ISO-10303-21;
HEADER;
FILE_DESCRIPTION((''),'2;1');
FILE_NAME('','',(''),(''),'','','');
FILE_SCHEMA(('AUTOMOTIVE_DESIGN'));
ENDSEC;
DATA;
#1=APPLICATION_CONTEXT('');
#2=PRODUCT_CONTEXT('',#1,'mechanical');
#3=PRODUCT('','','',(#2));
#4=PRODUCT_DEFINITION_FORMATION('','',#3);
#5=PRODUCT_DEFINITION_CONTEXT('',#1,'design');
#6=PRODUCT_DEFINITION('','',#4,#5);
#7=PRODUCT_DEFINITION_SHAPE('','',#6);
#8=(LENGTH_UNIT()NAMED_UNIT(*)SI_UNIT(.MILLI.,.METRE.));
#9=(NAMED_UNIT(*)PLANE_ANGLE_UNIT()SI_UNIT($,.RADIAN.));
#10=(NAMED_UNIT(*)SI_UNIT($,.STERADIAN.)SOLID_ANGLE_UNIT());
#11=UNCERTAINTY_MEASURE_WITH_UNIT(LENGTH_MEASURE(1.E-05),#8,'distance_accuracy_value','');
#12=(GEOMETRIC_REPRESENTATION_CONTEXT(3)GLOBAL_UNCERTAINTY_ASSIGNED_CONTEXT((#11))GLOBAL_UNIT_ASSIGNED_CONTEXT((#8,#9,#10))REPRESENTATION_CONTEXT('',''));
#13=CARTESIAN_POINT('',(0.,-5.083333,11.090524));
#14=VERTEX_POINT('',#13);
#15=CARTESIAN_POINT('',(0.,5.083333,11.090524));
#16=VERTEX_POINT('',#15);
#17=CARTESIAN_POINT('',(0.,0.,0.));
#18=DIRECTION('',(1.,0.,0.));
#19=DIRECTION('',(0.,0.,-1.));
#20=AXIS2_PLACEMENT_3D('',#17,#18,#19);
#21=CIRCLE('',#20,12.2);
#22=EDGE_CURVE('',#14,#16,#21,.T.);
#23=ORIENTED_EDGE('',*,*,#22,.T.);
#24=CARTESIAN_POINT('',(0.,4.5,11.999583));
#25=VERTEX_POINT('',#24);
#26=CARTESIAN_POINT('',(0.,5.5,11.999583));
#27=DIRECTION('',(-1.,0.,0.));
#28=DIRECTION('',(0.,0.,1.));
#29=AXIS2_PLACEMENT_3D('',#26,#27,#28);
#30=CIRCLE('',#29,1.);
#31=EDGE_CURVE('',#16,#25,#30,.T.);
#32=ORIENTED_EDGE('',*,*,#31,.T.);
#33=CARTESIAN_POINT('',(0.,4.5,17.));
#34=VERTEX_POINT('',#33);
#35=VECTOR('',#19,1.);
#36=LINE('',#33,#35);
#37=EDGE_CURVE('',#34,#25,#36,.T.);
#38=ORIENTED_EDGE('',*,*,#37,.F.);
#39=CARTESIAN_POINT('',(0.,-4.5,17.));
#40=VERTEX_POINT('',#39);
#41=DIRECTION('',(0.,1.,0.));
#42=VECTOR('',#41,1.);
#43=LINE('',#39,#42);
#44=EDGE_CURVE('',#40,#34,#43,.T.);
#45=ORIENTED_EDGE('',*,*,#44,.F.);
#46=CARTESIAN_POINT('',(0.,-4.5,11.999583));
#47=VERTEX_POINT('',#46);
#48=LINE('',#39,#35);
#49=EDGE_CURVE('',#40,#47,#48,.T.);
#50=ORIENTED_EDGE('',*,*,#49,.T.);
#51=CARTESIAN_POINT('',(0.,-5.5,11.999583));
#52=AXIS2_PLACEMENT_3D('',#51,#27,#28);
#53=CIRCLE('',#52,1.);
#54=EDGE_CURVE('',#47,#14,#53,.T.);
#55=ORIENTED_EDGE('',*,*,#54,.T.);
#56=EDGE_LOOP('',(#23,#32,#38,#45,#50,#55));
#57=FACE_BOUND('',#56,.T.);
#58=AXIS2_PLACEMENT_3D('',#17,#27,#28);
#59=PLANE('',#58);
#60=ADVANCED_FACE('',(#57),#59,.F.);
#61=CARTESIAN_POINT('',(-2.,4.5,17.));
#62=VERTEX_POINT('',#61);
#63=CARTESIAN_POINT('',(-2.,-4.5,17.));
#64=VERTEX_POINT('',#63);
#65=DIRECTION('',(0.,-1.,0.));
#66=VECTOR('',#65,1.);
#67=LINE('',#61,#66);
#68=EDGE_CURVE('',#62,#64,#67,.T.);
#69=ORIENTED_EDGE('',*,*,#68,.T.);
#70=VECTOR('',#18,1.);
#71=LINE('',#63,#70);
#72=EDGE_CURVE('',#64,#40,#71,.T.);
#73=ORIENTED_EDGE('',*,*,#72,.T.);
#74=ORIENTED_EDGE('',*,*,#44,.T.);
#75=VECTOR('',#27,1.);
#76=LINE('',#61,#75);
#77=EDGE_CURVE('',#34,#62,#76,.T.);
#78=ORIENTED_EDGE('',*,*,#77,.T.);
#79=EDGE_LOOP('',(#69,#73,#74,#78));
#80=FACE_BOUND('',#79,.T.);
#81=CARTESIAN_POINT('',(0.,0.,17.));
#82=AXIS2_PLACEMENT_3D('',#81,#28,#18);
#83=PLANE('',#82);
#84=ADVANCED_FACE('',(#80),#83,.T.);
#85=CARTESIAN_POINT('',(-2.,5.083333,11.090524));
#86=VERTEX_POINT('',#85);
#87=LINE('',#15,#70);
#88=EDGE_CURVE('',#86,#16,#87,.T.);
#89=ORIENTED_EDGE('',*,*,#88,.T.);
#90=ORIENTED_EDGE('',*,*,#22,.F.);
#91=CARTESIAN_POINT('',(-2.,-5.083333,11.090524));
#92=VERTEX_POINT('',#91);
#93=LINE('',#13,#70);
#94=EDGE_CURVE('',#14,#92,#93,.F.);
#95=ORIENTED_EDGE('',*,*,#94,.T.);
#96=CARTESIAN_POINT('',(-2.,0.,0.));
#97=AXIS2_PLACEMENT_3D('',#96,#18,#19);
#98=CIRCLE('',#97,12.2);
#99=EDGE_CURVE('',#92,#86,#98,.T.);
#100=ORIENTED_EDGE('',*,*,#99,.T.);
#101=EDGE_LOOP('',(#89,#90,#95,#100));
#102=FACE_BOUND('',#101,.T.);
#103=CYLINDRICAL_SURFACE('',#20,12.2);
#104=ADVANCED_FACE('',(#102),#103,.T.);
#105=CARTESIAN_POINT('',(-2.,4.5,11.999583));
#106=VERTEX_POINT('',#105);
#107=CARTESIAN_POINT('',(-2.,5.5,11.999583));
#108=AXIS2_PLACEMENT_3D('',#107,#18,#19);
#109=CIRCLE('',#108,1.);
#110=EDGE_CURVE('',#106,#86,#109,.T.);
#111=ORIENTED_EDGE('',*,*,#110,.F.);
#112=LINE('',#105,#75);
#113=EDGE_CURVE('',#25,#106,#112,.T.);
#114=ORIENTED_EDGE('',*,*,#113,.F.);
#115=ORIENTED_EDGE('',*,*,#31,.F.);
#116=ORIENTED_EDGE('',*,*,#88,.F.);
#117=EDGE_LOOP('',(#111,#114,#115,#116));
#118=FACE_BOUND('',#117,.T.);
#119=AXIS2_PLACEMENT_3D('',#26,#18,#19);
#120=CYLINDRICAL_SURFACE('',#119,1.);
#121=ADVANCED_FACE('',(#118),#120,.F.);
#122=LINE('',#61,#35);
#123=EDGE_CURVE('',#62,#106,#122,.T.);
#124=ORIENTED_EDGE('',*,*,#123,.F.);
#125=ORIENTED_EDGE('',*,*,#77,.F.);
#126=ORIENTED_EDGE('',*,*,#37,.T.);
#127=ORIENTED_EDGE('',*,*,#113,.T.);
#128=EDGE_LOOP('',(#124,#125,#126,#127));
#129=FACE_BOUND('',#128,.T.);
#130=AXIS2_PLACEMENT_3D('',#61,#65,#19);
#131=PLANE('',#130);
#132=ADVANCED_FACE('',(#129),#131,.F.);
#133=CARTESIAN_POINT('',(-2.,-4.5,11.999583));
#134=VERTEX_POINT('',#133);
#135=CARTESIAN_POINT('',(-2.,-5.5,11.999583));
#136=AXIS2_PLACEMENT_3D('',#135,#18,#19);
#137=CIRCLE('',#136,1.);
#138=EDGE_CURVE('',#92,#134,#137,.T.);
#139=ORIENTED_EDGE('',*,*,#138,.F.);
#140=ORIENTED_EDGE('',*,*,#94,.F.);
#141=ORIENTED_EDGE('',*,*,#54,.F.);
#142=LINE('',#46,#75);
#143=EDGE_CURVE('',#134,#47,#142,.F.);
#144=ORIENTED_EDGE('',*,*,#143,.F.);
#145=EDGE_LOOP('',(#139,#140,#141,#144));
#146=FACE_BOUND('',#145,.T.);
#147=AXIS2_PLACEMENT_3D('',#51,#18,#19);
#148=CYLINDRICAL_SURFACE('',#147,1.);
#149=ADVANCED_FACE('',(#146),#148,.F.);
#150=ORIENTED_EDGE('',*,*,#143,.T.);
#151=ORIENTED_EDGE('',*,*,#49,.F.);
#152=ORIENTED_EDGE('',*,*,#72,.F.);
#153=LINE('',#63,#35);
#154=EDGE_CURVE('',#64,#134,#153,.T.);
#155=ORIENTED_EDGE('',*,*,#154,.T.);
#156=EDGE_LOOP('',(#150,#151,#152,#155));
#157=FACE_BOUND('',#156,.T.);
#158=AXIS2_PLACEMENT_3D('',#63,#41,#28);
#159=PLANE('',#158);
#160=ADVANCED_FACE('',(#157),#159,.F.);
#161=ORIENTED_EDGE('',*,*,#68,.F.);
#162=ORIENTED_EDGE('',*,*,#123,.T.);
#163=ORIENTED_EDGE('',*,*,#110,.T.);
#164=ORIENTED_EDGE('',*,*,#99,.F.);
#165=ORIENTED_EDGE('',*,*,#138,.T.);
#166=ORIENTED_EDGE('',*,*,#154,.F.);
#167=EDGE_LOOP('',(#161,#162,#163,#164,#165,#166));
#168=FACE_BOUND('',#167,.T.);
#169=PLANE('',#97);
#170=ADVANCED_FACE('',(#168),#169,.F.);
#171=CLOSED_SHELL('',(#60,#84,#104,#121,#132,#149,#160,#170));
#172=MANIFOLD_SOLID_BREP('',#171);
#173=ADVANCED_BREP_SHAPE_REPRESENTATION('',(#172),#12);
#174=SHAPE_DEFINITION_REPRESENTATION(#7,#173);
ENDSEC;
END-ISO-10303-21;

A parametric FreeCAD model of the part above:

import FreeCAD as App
import Part
import Sketcher

V = App.Vector
Q = App.Units.Quantity


def edges_at(feature, points):
    """Names of the edges that pass closest to the given points."""
    edges = feature.Shape.Edges
    near = lambda p: min(range(len(edges)), key=lambda i: edges[i].distToShape(Part.Vertex(*p))[0])
    return sorted({f"Edge{near(p) + 1}" for p in points})


def add_polygon(sketch, points):
    """Adds a closed chain of lines whose ends are joined by coincident constraints."""
    first, n = sketch.GeometryCount, len(points)
    for a, b in zip(points, points[1:] + points[:1]):
        sketch.addGeometry(Part.LineSegment(App.Vector(*a, 0), App.Vector(*b, 0)), False)
    for i in range(n):
        sketch.addConstraint(Sketcher.Constraint("Coincident", first + i, 2, first + (i + 1) % n, 1))

doc = App.newDocument("Part")
params = doc.addObject("Spreadsheet::Sheet", "Params")
for row, (alias, value) in enumerate([
    ("sketch1_width", "2 mm"),
    ("sketch1_height", "12.2 mm"),
    ("revolution_angle", "360 deg"),
    ("sketch2_width", "2 mm"),
    ("sketch2_height", "9 mm"),
    ("pad1_length", "17 mm"),
    ("fillet_radius", "1 mm"),
], start=1):
    params.set(f"A{row}", alias)
    params.set(f"B{row}", "=" + value)
    params.setAlias(f"B{row}", alias)

body = doc.addObject("PartDesign::Body", "Body")

# Sketch on XZ plane
sketch1 = body.newObject("Sketcher::SketchObject", "Sketch")
sketch1.AttachmentSupport = (doc.getObject("XZ_Plane"), [""])
sketch1.MapMode = "FlatFace"
add_polygon(sketch1, [(-2, 0), (-2, 12.2), (0, 12.2), (0, 0)])  # lines 0-3
sketch1.addConstraint([
    Sketcher.Constraint("Vertical", 0),
    Sketcher.Constraint("Horizontal", 1),
    Sketcher.Constraint("Vertical", 2),
    Sketcher.Constraint("Horizontal", 3),
    Sketcher.Constraint("Coincident", 2, 2, -1, 1),
    Sketcher.Constraint("DistanceX", 1, 1, 1, 2, Q("2 mm")),
    Sketcher.Constraint("DistanceY", 0, 1, 0, 2, Q("12.2 mm")),
])
sketch1.setExpression("Constraints[9]", "Params.sketch1_width")
sketch1.setExpression("Constraints[10]", "Params.sketch1_height")
revolution = body.newObject("PartDesign::Revolution", "Revolution")
revolution.Profile = sketch1
revolution.ReferenceAxis = (sketch1, ["H_Axis"])
revolution.setExpression("Angle", "Params.revolution_angle")

# Sketch on XY plane
sketch2 = body.newObject("Sketcher::SketchObject", "Sketch001")
sketch2.AttachmentSupport = (doc.getObject("XY_Plane"), [""])
sketch2.MapMode = "FlatFace"
add_polygon(sketch2, [(-2, 4.5), (-2, -4.5), (0, -4.5), (0, 4.5)])  # lines 0-3
sketch2.addConstraint([
    Sketcher.Constraint("Vertical", 0),
    Sketcher.Constraint("Horizontal", 1),
    Sketcher.Constraint("Vertical", 2),
    Sketcher.Constraint("Horizontal", 3),
    Sketcher.Constraint("Symmetric", 1, 2, 2, 2, -1, 1),
    Sketcher.Constraint("DistanceX", 1, 1, 1, 2, Q("2 mm")),
    Sketcher.Constraint("DistanceY", 0, 2, 0, 1, Q("9 mm")),
])
sketch2.setExpression("Constraints[9]", "Params.sketch2_width")
sketch2.setExpression("Constraints[10]", "Params.sketch2_height")
pad1 = body.newObject("PartDesign::Pad", "Pad")
pad1.Profile = sketch2
pad1.setExpression("Length", "Params.pad1_length")
doc.recompute()

fillet = body.newObject("PartDesign::Fillet", "Fillet")
fillet.Base = (pad1, edges_at(pad1, [(-1, -4.5, 11.34), (-1, 4.5, 11.34)]))
fillet.setExpression("Radius", "Params.fillet_radius")

doc.recompute()
